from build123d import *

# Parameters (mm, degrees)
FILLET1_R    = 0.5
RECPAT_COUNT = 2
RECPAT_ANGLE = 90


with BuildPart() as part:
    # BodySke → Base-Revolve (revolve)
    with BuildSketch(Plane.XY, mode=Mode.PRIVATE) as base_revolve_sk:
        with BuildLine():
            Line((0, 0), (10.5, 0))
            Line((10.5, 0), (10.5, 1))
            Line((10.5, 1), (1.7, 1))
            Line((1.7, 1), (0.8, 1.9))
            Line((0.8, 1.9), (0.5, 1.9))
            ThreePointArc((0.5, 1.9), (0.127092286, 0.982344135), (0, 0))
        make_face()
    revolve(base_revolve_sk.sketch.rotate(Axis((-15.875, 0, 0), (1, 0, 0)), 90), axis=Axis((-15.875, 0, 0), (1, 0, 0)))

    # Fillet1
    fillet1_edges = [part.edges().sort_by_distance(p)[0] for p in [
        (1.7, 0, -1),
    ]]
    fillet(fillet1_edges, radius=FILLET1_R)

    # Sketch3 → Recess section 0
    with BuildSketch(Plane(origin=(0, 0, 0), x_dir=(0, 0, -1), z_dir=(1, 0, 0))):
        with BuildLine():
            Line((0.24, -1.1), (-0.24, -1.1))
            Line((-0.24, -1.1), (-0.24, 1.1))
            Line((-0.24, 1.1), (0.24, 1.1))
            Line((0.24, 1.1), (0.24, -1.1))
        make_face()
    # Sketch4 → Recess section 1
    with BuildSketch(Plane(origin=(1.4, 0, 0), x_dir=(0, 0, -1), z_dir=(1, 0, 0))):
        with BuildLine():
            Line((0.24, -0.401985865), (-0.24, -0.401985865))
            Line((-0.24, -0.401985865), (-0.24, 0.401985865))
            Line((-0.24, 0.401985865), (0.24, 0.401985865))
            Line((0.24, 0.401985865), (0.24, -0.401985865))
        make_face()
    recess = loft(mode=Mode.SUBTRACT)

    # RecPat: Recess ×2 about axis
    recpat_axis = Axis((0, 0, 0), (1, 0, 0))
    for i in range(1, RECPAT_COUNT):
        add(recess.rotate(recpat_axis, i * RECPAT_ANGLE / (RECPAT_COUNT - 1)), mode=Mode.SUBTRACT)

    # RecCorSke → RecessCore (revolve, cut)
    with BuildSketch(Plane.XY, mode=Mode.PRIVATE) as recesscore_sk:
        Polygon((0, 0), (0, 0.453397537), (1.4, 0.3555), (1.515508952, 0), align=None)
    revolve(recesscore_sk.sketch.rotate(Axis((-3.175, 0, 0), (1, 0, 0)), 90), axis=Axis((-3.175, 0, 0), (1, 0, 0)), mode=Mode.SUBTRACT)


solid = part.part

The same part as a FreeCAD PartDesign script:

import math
import FreeCAD as App
import Part
import Sketcher

V = App.Vector
Q = App.Units.Quantity


def edges_at(feature, points):
    """Names of the edges that pass closest to the given points."""
    edges = feature.Shape.Edges
    near = lambda p: min(range(len(edges)), key=lambda i: edges[i].distToShape(Part.Vertex(*p))[0])
    return sorted({f"Edge{near(p) + 1}" for p in points})

doc = App.newDocument("Part")
body = doc.addObject("PartDesign::Body", "Body")

# Sketch on XY plane
sketch1 = body.newObject("Sketcher::SketchObject", "Sketch")
sketch1.AttachmentSupport = (doc.getObject("XY_Plane"), [""])
sketch1.MapMode = "FlatFace"
sketch1.addGeometry([
    Part.LineSegment(V(0, 0, 0), V(10.5, 0, 0)),  # 0
    Part.LineSegment(V(10.5, 0, 0), V(10.5, 1, 0)),  # 1
    Part.LineSegment(V(10.5, 1, 0), V(1.7, 1, 0)),  # 2
    Part.LineSegment(V(1.7, 1, 0), V(0.8, 1.9, 0)),  # 3
    Part.LineSegment(V(0.8, 1.9, 0), V(0.5, 1.9, 0)),  # 4
    Part.ArcOfCircle(Part.Circle(V(3.86, 0, 0), V(0, 0, 1), 3.86), math.radians(151), math.radians(180)),  # 5
], False)
sketch1.addConstraint([
    Sketcher.Constraint("Coincident", 0, 2, 1, 1),
    Sketcher.Constraint("Coincident", 1, 2, 2, 1),
    Sketcher.Constraint("Coincident", 2, 2, 3, 1),
    Sketcher.Constraint("Coincident", 3, 2, 4, 1),
    Sketcher.Constraint("Coincident", 4, 2, 5, 1),
    Sketcher.Constraint("Coincident", 5, 2, 0, 1),
    Sketcher.Constraint("Horizontal", 0),
    Sketcher.Constraint("Vertical", 1),
    Sketcher.Constraint("Horizontal", 2),
    Sketcher.Constraint("Horizontal", 4),
    Sketcher.Constraint("Coincident", 5, 2, -1, 1),
    Sketcher.Constraint("PointOnObject", 5, 3, -1),
    Sketcher.Constraint("DistanceY", 1, 1, 1, 2, 1.0),
    Sketcher.Constraint("Angle", 3, Q("135 deg")),
    Sketcher.Constraint("Radius", 5, 3.86),
    Sketcher.Constraint("DistanceX", 0, 1, 0, 2, 10.5),
    Sketcher.Constraint("DistanceX", 2, 2, 2, 1, 8.8),
    Sketcher.Constraint("DistanceX", 4, 2, 4, 1, 0.3),
])
revolution = body.newObject("PartDesign::Revolution", "Revolution")
revolution.Profile = sketch1
revolution.ReferenceAxis = (sketch1, ["H_Axis"])
revolution.Angle = 360
doc.recompute()

fillet = body.newObject("PartDesign::Fillet", "Fillet")
fillet.Base = (revolution, edges_at(revolution, [(1.7, 0, -1)]))
fillet.Radius = 0.5

# Sketch on YZ plane
sketch2 = body.newObject("Sketcher::SketchObject", "Sketch001")
sketch2.AttachmentSupport = (doc.getObject("YZ_Plane"), [""])
sketch2.MapMode = "FlatFace"
sketch2.addGeometry([
    Part.LineSegment(V(-1.1, 0.24, 0), V(-1.1, -0.24, 0)),
    Part.LineSegment(V(-1.1, -0.24, 0), V(1.1, -0.24, 0)),
    Part.LineSegment(V(1.1, -0.24, 0), V(1.1, 0.24, 0)),
    Part.LineSegment(V(1.1, 0.24, 0), V(-1.1, 0.24, 0)),
], False)
sketch2.addConstraint([
    Sketcher.Constraint("Coincident", 0, 2, 1, 1),
    Sketcher.Constraint("Coincident", 1, 2, 2, 1),
    Sketcher.Constraint("Coincident", 2, 2, 3, 1),
    Sketcher.Constraint("Coincident", 3, 2, 0, 1),
    Sketcher.Constraint("Vertical", 0),
    Sketcher.Constraint("Horizontal", 1),
    Sketcher.Constraint("Vertical", 2),
    Sketcher.Constraint("Horizontal", 3),
    Sketcher.Constraint("Symmetric", 0, 2, 2, 2, -1, 1),
    Sketcher.Constraint("DistanceX", 1, 1, 1, 2, 2.2),
    Sketcher.Constraint("DistanceY", 0, 2, 0, 1, 0.48),
])

# Sketch on YZ plane
sketch3 = body.newObject("Sketcher::SketchObject", "Sketch002")
sketch3.AttachmentSupport = (doc.getObject("YZ_Plane"), [""])
sketch3.MapMode = "FlatFace"
sketch3.AttachmentOffset = App.Placement(V(0, 0, 1.4), App.Rotation())
sketch3.addGeometry([
    Part.LineSegment(V(-0.4, 0.24, 0), V(-0.4, -0.24, 0)),
    Part.LineSegment(V(-0.4, -0.24, 0), V(0.4, -0.24, 0)),
    Part.LineSegment(V(0.4, -0.24, 0), V(0.4, 0.24, 0)),
    Part.LineSegment(V(0.4, 0.24, 0), V(-0.4, 0.24, 0)),
], False)
sketch3.addConstraint([
    Sketcher.Constraint("Coincident", 0, 2, 1, 1),
    Sketcher.Constraint("Coincident", 1, 2, 2, 1),
    Sketcher.Constraint("Coincident", 2, 2, 3, 1),
    Sketcher.Constraint("Coincident", 3, 2, 0, 1),
    Sketcher.Constraint("Vertical", 0),
    Sketcher.Constraint("Horizontal", 1),
    Sketcher.Constraint("Vertical", 2),
    Sketcher.Constraint("Horizontal", 3),
    Sketcher.Constraint("Symmetric", 0, 2, 2, 2, -1, 1),
    Sketcher.Constraint("DistanceY", 0, 2, 0, 1, 0.48),
    Sketcher.Constraint("DistanceX", 1, 1, 1, 2, 0.803972),
])

subtractiveloft = body.newObject("PartDesign::SubtractiveLoft", "SubtractiveLoft")
subtractiveloft.Profile = sketch2
subtractiveloft.Sections = [sketch3]
doc.recompute()

polarpattern = body.newObject("PartDesign::PolarPattern", "PolarPattern")
polarpattern.Originals = [subtractiveloft]
polarpattern.Axis = (doc.getObject("X_Axis"), [""])
polarpattern.Angle = 90
polarpattern.Occurrences = 2
body.Tip = polarpattern

# Sketch on XY plane
sketch4 = body.newObject("Sketcher::SketchObject", "Sketch003")
sketch4.AttachmentSupport = (doc.getObject("XY_Plane"), [""])
sketch4.MapMode = "FlatFace"
sketch4.addGeometry([
    Part.LineSegment(V(0, 0.45, 0), V(0, 0, 0)),
    Part.LineSegment(V(0, 0, 0), V(1.52, 0, 0)),
    Part.LineSegment(V(1.52, 0, 0), V(1.4, 0.36, 0)),
    Part.LineSegment(V(1.4, 0.36, 0), V(0, 0.45, 0)),
], False)
sketch4.addConstraint([
    Sketcher.Constraint("Coincident", 0, 2, 1, 1),
    Sketcher.Constraint("Coincident", 1, 2, 2, 1),
    Sketcher.Constraint("Coincident", 2, 2, 3, 1),
    Sketcher.Constraint("Coincident", 3, 2, 0, 1),
    Sketcher.Constraint("Vertical", 0),
    Sketcher.Constraint("Horizontal", 1),
    Sketcher.Constraint("Coincident", 0, 2, -1, 1),
    Sketcher.Constraint("Angle", 2, Q("108 deg")),
    Sketcher.Constraint("Angle", 3, Q("176 deg")),
    Sketcher.Constraint("DistanceX", -1, 1, 2, 2, 1.4),
    Sketcher.Constraint("DistanceX", 1, 1, 1, 2, 1.515509),
])
groove = body.newObject("PartDesign::Groove", "Groove")
groove.Profile = sketch4
groove.ReferenceAxis = (sketch4, ["H_Axis"])
groove.Angle = 360

doc.recompute()
